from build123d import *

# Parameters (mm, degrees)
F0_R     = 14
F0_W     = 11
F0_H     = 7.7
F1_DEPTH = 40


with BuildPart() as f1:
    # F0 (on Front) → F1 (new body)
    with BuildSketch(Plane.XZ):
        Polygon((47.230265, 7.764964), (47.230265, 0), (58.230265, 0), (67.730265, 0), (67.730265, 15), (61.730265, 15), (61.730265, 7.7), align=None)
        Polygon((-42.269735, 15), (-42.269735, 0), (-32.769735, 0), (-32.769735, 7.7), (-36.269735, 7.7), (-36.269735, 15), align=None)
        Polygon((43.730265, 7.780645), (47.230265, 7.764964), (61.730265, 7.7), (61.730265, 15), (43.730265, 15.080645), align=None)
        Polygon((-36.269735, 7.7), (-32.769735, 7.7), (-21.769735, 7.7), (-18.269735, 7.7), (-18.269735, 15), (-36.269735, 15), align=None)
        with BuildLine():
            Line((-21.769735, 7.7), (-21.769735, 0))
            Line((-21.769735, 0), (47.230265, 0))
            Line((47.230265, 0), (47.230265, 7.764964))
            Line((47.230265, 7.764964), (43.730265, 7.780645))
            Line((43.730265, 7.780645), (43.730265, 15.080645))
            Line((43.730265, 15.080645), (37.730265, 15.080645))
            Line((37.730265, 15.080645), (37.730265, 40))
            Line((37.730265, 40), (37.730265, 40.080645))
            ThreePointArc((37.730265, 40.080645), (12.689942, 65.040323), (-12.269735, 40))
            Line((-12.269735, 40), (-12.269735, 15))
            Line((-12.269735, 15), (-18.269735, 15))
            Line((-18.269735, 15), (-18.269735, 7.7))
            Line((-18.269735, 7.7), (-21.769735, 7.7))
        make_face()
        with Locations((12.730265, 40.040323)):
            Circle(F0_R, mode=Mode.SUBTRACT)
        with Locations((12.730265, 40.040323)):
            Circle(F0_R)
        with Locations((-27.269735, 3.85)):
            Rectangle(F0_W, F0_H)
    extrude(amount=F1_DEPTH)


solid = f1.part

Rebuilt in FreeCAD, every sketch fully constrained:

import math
import FreeCAD as App
import Part
import Sketcher

V = App.Vector

doc = App.newDocument("Part")
params = doc.addObject("Spreadsheet::Sheet", "Params")
for row, (alias, value) in enumerate([
    ("sketch1_width", "6 mm"),
    ("sketch1_width2", "30 mm"),
    ("sketch1_width3", "110 mm"),
    ("sketch1_height", "15 mm"),
    ("sketch1_height2", "25 mm"),
    ("pad1_length", "40 mm"),
], start=1):
    params.set(f"A{row}", alias)
    params.set(f"B{row}", "=" + value)
    params.setAlias(f"B{row}", alias)

body = doc.addObject("PartDesign::Body", "Body")

# Sketch on XZ plane
sketch1 = body.newObject("Sketcher::SketchObject", "Sketch")
sketch1.AttachmentSupport = (doc.getObject("XZ_Plane"), [""])
sketch1.MapMode = "FlatFace"
sketch1.addGeometry(Part.LineSegment(V(67.730265, 0, 0), V(67.730265, 15, 0)), False)
sketch1.addGeometry(Part.LineSegment(V(67.730265, 15, 0), V(61.730265, 15, 0)), False)
sketch1.addGeometry(Part.LineSegment(V(61.730265, 15, 0), V(43.730265, 15.080645, 0)), False)
sketch1.addGeometry(Part.LineSegment(V(43.730265, 15.080645, 0), V(37.730265, 15.080645, 0)), False)
sketch1.addGeometry(Part.LineSegment(V(37.730265, 15.080645, 0), V(37.730265, 40.080645, 0)), False)
sketch1.addGeometry(Part.ArcOfCircle(Part.Circle(V(12.730265, 40.040323, 0), V(0, 0, 1), 25.000033), math.radians(0.092411), math.radians(180.092413)), False)
sketch1.addGeometry(Part.LineSegment(V(-12.269735, 40, 0), V(-12.269735, 15, 0)), False)
sketch1.addGeometry(Part.LineSegment(V(-12.269735, 15, 0), V(-42.269735, 15, 0)), False)
sketch1.addGeometry(Part.LineSegment(V(-42.269735, 15, 0), V(-42.269735, 0, 0)), False)
sketch1.addGeometry(Part.LineSegment(V(-42.269735, 0, 0), V(67.730265, 0, 0)), False)
sketch1.addConstraint(Sketcher.Constraint("Coincident", 0, 2, 1, 1))
sketch1.addConstraint(Sketcher.Constraint("Coincident", 1, 2, 2, 1))
sketch1.addConstraint(Sketcher.Constraint("Coincident", 2, 2, 3, 1))
sketch1.addConstraint(Sketcher.Constraint("Coincident", 3, 2, 4, 1))
sketch1.addConstraint(Sketcher.Constraint("Coincident", 4, 2, 5, 1))
sketch1.addConstraint(Sketcher.Constraint("Coincident", 5, 2, 6, 1))
sketch1.addConstraint(Sketcher.Constraint("Coincident", 6, 2, 7, 1))
sketch1.addConstraint(Sketcher.Constraint("Coincident", 7, 2, 8, 1))
sketch1.addConstraint(Sketcher.Constraint("Coincident", 8, 2, 9, 1))
sketch1.addConstraint(Sketcher.Constraint("Coincident", 9, 2, 0, 1))
sketch1.addConstraint(Sketcher.Constraint("Vertical", 0))
sketch1.addConstraint(Sketcher.Constraint("Horizontal", 1))
sketch1.addConstraint(Sketcher.Constraint("Horizontal", 3))
sketch1.addConstraint(Sketcher.Constraint("Vertical", 4))
sketch1.addConstraint(Sketcher.Constraint("Vertical", 6))
sketch1.addConstraint(Sketcher.Constraint("Horizontal", 7))
sketch1.addConstraint(Sketcher.Constraint("Vertical", 8))
sketch1.addConstraint(Sketcher.Constraint("Horizontal", 9))
sketch1.addConstraint(Sketcher.Constraint("PointOnObject", 8, 2, -1))
sketch1.addConstraint(Sketcher.Constraint("Horizontal", 1, 2, 6, 2))
sketch1.addConstraint(Sketcher.Constraint("Equal", 1, 3))
sketch1.addConstraint(Sketcher.Constraint("Equal", 4, 6))
sketch1.addConstraint(Sketcher.Constraint("DistanceX", 1, 2, 1, 1, 6.0))
sketch1.addConstraint(Sketcher.Constraint("DistanceX", 7, 2, 7, 1, 30.0))
sketch1.addConstraint(Sketcher.Constraint("DistanceX", 9, 1, 9, 2, 110.0))
sketch1.addConstraint(Sketcher.Constraint("DistanceY", 0, 1, 0, 2, 15.0))
sketch1.addConstraint(Sketcher.Constraint("DistanceY", 4, 1, 4, 2, 25.0))
sketch1.addConstraint(Sketcher.Constraint("DistanceX", 5, 3, 0, 2, 55.0))
sketch1.addConstraint(Sketcher.Constraint("DistanceX", 2, 2, 1, 2, 18.0))
sketch1.addConstraint(Sketcher.Constraint("DistanceY", 2, 2, 5, 3, 24.959678))
sketch1.addConstraint(Sketcher.Constraint("DistanceX", -1, 1, 5, 3, 12.730265))
sketch1.setExpression("Constraints[22]", "Params.sketch1_width")
sketch1.setExpression("Constraints[23]", "Params.sketch1_width2")
sketch1.setExpression("Constraints[24]", "Params.sketch1_width3")
sketch1.setExpression("Constraints[25]", "Params.sketch1_height")
sketch1.setExpression("Constraints[26]", "Params.sketch1_height2")
pad1 = body.newObject("PartDesign::Pad", "Pad")
pad1.Profile = sketch1
pad1.setExpression("Length", "Params.pad1_length")

doc.recompute()
